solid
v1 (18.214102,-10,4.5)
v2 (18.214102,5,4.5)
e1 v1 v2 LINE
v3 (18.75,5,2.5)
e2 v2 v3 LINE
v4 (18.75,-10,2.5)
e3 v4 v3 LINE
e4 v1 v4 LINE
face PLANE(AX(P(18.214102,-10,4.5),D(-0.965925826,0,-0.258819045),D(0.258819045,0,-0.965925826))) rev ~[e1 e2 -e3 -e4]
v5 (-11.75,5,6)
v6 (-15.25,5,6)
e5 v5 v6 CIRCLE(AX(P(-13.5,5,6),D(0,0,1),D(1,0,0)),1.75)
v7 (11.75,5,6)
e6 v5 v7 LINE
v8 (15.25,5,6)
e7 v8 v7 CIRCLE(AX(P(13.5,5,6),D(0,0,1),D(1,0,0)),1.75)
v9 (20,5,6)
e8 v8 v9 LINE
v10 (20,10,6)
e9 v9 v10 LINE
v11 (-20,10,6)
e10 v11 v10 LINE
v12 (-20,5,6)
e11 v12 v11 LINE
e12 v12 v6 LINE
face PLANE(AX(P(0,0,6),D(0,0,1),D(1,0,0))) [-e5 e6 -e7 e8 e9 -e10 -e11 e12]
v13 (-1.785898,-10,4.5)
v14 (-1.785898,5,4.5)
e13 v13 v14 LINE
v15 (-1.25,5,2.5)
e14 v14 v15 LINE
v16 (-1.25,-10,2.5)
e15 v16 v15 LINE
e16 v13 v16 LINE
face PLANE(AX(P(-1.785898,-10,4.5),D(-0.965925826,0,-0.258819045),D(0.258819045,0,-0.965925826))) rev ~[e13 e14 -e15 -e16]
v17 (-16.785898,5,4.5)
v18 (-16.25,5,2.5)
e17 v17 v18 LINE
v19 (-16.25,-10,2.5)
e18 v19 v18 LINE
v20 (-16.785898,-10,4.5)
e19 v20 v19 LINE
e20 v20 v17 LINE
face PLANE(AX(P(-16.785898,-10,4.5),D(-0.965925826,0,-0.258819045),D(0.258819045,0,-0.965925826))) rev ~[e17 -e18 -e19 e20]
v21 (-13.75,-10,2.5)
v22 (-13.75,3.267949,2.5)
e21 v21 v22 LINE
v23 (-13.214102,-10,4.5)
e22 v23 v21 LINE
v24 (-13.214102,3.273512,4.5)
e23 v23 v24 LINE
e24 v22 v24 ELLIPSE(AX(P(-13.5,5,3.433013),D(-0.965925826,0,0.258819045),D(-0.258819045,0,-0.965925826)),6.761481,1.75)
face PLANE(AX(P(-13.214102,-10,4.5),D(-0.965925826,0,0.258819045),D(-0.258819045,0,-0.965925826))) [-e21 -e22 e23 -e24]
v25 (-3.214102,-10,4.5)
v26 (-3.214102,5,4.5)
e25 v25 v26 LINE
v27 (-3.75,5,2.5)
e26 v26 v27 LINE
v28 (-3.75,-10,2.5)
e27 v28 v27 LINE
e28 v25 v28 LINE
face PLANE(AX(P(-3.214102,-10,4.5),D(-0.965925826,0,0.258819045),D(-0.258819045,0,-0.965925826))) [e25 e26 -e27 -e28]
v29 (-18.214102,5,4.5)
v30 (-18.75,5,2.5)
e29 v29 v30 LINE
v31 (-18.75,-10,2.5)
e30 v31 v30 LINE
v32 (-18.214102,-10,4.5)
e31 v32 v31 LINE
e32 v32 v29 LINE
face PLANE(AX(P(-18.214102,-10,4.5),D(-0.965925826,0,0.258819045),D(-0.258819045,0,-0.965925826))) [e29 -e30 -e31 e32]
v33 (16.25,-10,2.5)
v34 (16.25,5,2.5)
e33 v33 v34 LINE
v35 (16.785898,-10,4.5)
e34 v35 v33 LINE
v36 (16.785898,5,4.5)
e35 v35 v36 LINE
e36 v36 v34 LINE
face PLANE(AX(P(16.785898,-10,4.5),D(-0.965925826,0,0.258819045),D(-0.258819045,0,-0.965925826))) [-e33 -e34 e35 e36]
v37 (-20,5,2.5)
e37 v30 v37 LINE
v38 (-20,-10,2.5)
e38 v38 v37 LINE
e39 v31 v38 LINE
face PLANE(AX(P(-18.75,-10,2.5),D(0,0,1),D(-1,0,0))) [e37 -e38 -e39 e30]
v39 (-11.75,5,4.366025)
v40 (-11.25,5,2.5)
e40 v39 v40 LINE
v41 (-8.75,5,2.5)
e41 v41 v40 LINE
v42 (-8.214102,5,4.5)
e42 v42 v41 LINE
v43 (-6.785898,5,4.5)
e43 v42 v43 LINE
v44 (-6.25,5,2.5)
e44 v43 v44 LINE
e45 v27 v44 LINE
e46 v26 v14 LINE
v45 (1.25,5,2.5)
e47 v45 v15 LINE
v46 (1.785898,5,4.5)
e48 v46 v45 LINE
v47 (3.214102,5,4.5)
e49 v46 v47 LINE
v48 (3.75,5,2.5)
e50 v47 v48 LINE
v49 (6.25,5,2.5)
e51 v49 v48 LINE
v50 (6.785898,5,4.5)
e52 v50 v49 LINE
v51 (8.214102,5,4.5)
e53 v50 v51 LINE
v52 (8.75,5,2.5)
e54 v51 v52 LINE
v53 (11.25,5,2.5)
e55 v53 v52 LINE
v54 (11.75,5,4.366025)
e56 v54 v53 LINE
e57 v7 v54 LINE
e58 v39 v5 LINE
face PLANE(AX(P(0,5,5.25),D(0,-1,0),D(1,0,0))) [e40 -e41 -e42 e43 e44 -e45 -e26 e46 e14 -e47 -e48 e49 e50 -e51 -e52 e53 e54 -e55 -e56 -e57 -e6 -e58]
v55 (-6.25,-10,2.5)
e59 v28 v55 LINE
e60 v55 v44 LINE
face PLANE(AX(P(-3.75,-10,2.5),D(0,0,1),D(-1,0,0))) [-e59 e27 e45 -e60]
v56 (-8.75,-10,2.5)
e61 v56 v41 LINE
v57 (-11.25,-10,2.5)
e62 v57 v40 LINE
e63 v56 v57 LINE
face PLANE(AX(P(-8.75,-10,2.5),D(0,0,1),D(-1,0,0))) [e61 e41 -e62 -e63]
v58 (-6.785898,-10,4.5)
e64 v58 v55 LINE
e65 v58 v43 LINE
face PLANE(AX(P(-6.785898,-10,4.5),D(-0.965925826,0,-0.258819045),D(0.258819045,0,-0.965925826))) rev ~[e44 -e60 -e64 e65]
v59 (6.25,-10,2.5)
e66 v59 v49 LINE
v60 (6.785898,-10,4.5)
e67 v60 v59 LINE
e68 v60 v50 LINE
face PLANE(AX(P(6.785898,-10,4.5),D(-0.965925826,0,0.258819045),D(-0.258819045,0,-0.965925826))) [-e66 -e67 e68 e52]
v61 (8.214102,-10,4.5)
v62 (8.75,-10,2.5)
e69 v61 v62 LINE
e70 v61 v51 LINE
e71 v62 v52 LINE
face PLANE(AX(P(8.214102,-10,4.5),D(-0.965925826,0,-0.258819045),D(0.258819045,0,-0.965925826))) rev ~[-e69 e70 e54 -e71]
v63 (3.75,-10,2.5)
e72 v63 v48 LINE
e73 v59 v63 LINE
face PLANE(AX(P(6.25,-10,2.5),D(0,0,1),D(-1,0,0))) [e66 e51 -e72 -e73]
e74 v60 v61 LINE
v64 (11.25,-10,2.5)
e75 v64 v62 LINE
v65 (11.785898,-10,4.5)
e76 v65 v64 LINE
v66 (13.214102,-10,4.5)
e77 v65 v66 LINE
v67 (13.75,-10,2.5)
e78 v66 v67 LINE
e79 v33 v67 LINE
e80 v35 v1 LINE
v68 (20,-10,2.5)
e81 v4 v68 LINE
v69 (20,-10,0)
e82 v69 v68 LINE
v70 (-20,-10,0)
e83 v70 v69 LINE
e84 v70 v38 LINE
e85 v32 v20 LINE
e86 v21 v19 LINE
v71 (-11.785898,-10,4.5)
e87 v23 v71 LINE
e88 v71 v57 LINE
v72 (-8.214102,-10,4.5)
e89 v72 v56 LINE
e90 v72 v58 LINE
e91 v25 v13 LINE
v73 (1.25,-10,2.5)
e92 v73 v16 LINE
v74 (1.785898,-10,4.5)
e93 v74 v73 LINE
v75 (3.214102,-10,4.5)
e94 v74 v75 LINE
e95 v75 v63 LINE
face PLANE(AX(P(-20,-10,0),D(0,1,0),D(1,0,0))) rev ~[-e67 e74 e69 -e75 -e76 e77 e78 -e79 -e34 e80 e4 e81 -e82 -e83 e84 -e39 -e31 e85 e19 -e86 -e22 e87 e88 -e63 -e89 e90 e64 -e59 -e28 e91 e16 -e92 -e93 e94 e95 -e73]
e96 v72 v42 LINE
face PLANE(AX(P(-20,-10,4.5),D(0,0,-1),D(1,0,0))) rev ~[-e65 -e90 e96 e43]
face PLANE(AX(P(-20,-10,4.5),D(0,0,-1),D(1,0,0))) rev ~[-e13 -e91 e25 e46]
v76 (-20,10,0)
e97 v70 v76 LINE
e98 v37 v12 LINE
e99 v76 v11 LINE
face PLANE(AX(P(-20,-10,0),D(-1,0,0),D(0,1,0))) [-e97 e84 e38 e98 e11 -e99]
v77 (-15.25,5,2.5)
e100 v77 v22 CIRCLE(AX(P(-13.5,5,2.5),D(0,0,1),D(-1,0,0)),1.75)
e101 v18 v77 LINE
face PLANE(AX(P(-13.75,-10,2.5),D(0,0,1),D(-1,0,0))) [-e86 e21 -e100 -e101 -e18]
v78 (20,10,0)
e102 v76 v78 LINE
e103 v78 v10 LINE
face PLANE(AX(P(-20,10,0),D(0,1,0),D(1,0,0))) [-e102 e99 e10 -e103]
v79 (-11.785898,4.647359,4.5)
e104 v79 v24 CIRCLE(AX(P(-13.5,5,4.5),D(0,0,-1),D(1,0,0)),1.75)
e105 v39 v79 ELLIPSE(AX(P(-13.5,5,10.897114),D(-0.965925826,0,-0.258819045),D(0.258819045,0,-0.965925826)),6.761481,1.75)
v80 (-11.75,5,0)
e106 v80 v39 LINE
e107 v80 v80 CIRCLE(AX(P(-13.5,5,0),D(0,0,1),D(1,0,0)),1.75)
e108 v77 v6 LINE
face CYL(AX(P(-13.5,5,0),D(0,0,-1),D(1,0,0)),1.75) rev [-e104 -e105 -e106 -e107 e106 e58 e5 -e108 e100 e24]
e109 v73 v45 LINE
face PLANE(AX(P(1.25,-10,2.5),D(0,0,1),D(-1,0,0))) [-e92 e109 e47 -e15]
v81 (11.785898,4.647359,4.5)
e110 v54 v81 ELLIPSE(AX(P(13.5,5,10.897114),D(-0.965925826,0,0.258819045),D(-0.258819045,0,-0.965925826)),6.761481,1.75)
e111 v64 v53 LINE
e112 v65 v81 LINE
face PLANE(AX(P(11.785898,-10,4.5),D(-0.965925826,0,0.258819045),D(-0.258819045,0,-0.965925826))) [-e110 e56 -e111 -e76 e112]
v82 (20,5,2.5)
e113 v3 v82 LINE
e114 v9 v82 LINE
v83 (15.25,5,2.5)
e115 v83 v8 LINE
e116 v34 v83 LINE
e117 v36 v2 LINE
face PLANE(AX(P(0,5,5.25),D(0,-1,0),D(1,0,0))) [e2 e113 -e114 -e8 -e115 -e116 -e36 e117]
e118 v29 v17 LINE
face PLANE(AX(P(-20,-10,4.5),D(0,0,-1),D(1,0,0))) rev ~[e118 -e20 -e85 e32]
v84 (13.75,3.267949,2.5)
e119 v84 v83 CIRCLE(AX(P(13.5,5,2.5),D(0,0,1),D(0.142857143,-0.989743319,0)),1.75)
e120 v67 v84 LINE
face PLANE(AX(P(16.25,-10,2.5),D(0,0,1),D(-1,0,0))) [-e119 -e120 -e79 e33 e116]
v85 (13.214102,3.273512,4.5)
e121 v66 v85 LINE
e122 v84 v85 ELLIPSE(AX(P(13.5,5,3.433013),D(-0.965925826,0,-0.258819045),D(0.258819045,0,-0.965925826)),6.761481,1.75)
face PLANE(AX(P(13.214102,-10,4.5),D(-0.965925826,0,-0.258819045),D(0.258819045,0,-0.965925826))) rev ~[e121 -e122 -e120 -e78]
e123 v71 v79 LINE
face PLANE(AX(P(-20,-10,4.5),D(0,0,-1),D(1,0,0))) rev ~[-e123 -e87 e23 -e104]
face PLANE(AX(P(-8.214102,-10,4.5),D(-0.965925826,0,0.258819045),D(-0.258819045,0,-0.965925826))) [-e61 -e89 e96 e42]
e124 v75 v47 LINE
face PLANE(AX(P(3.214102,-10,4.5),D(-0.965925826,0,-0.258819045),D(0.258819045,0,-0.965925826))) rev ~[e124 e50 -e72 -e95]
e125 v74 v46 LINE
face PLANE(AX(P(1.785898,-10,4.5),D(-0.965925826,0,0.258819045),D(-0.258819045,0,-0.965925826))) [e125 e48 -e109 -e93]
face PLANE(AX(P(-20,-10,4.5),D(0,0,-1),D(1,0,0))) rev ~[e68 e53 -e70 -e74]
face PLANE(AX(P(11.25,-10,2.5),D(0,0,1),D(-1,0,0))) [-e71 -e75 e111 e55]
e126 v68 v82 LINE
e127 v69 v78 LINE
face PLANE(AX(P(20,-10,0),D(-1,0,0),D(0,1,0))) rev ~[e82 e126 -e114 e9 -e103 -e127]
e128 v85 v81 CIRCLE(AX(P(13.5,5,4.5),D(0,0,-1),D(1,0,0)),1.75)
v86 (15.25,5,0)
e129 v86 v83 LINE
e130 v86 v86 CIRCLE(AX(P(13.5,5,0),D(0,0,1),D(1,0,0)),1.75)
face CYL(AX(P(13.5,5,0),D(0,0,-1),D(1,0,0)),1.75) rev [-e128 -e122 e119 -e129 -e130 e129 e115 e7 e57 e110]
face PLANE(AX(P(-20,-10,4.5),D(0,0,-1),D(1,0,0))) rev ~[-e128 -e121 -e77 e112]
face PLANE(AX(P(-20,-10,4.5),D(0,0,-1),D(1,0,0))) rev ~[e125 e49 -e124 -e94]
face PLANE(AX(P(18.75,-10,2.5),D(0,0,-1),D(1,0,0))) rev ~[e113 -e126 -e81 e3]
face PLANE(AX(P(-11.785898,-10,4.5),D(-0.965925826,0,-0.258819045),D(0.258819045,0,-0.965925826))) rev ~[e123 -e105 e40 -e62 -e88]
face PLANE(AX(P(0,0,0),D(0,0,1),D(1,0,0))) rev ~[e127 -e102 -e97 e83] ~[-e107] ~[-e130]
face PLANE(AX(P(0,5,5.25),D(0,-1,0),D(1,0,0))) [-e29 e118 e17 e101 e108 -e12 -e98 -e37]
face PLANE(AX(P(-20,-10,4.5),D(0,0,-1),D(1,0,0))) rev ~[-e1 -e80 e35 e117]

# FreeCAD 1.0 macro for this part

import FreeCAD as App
import Part
import Sketcher

V = App.Vector
Q = App.Units.Quantity

doc = App.newDocument("Part")
params = doc.addObject("Spreadsheet::Sheet", "Params")
for row, (alias, value) in enumerate([
    ("sketch1_diameter", "3.5 mm"),
    ("sketch1_width", "40 mm"),
    ("sketch1_height", "20 mm"),
    ("pad1_length", "6 mm"),
    ("sketch2_width", "40 mm"),
    ("sketch2_height", "1.5 mm"),
    ("pocket1_length", "15 mm"),
    ("sketch3_height", "2 mm"),
    ("sketch3_width", "1.25 mm"),
    ("pocket2_length", "15 mm"),
    ("linearpattern_pitch", "5 mm"),
], start=1):
    params.set(f"A{row}", alias)
    params.set(f"B{row}", "=" + value)
    params.setAlias(f"B{row}", alias)

body = doc.addObject("PartDesign::Body", "Body")

# Sketch on XY plane
sketch1 = body.newObject("Sketcher::SketchObject", "Sketch")
sketch1.AttachmentSupport = (doc.getObject("XY_Plane"), [""])
sketch1.MapMode = "FlatFace"
sketch1.addGeometry([
    Part.LineSegment(V(-20, 10, 0), V(-20, -10, 0)),  # 0
    Part.LineSegment(V(-20, -10, 0), V(20, -10, 0)),  # 1
    Part.LineSegment(V(20, -10, 0), V(20, 10, 0)),  # 2
    Part.LineSegment(V(20, 10, 0), V(-20, 10, 0)),  # 3
    Part.Circle(V(-13.5, 5, 0), V(0, 0, 1), 1.75),  # 4
    Part.Circle(V(13.5, 5, 0), V(0, 0, 1), 1.75),  # 5
], False)
sketch1.addConstraint([
    Sketcher.Constraint("Coincident", 0, 2, 1, 1),
    Sketcher.Constraint("Coincident", 1, 2, 2, 1),
    Sketcher.Constraint("Coincident", 2, 2, 3, 1),
    Sketcher.Constraint("Coincident", 3, 2, 0, 1),
    Sketcher.Constraint("Vertical", 0),
    Sketcher.Constraint("Horizontal", 1),
    Sketcher.Constraint("Vertical", 2),
    Sketcher.Constraint("Horizontal", 3),
    Sketcher.Constraint("Equal", 4, 5),
    Sketcher.Constraint("Symmetric", 0, 2, 2, 2, -1, 1),
    Sketcher.Constraint("Symmetric", 4, 3, 5, 3, -2),
    Sketcher.Constraint("Diameter", 4, 3.5),
    Sketcher.Constraint("DistanceX", 1, 1, 1, 2, 40.0),
    Sketcher.Constraint("DistanceY", 0, 2, 0, 1, 20.0),
    Sketcher.Constraint("DistanceY", -1, 1, 4, 3, 5.0),
    Sketcher.Constraint("DistanceX", 4, 3, 5, 3, 27.0),
])
sketch1.setExpression("Constraints[11]", "Params.sketch1_diameter")
sketch1.setExpression("Constraints[12]", "Params.sketch1_width")
sketch1.setExpression("Constraints[13]", "Params.sketch1_height")
pad1 = body.newObject("PartDesign::Pad", "Pad")
pad1.Profile = sketch1
pad1.setExpression("Length", "Params.pad1_length")

# Sketch on XZ plane
sketch2 = body.newObject("Sketcher::SketchObject", "Sketch001")
sketch2.AttachmentSupport = (doc.getObject("XZ_Plane"), [""])
sketch2.MapMode = "FlatFace"
sketch2.AttachmentOffset = App.Placement(V(0, 0, 10), App.Rotation())
sketch2.addGeometry([
    Part.LineSegment(V(-20, 6, 0), V(-20, 4.5, 0)),
    Part.LineSegment(V(-20, 4.5, 0), V(20, 4.5, 0)),
    Part.LineSegment(V(20, 4.5, 0), V(20, 6, 0)),
    Part.LineSegment(V(20, 6, 0), V(-20, 6, 0)),
], False)
sketch2.addConstraint([
    Sketcher.Constraint("Coincident", 0, 2, 1, 1),
    Sketcher.Constraint("Coincident", 1, 2, 2, 1),
    Sketcher.Constraint("Coincident", 2, 2, 3, 1),
    Sketcher.Constraint("Coincident", 3, 2, 0, 1),
    Sketcher.Constraint("Vertical", 0),
    Sketcher.Constraint("Horizontal", 1),
    Sketcher.Constraint("Vertical", 2),
    Sketcher.Constraint("Horizontal", 3),
    Sketcher.Constraint("DistanceX", 1, 1, 1, 2, 40.0),
    Sketcher.Constraint("DistanceY", 0, 2, 0, 1, 1.5),
    Sketcher.Constraint("DistanceX", 0, 2, -1, 1, 20.0),
    Sketcher.Constraint("DistanceY", -1, 1, 2, 2, 6.0),
])
sketch2.setExpression("Constraints[8]", "Params.sketch2_width")
sketch2.setExpression("Constraints[9]", "Params.sketch2_height")
pocket1 = body.newObject("PartDesign::Pocket", "Pocket")
pocket1.Profile = sketch2
pocket1.setExpression("Length", "Params.pocket1_length")

# Sketch on XZ plane
sketch3 = body.newObject("Sketcher::SketchObject", "Sketch002")
sketch3.AttachmentSupport = (doc.getObject("XZ_Plane"), [""])
sketch3.MapMode = "FlatFace"
sketch3.AttachmentOffset = App.Placement(V(0, 0, 10), App.Rotation())
sketch3.addGeometry([
    Part.LineSegment(V(-18.214102, 4.5, 0), V(-20, 4.5, 0)),  # 0
    Part.LineSegment(V(-20, 4.5, 0), V(-20, 2.5, 0)),  # 1
    Part.LineSegment(V(-20, 2.5, 0), V(-18.75, 2.5, 0)),  # 2
    Part.LineSegment(V(-18.75, 2.5, 0), V(-18.214102, 4.5, 0)),  # 3
    Part.LineSegment(V(-16.785898, 4.5, 0), V(-16.25, 2.5, 0)),  # 4
    Part.LineSegment(V(-16.25, 2.5, 0), V(-15, 2.5, 0)),  # 5
    Part.LineSegment(V(-15, 2.5, 0), V(-15, 4.5, 0)),  # 6
    Part.LineSegment(V(-15, 4.5, 0), V(-16.785898, 4.5, 0)),  # 7
], False)
sketch3.addConstraint([
    Sketcher.Constraint("Coincident", 0, 2, 1, 1),
    Sketcher.Constraint("Coincident", 1, 2, 2, 1),
    Sketcher.Constraint("Coincident", 2, 2, 3, 1),
    Sketcher.Constraint("Coincident", 3, 2, 0, 1),
    Sketcher.Constraint("Coincident", 4, 2, 5, 1),
    Sketcher.Constraint("Coincident", 5, 2, 6, 1),
    Sketcher.Constraint("Coincident", 6, 2, 7, 1),
    Sketcher.Constraint("Coincident", 7, 2, 4, 1),
    Sketcher.Constraint("Horizontal", 0),
    Sketcher.Constraint("Vertical", 1),
    Sketcher.Constraint("Horizontal", 2),
    Sketcher.Constraint("Horizontal", 5),
    Sketcher.Constraint("Vertical", 6),
    Sketcher.Constraint("Horizontal", 7),
    Sketcher.Constraint("Horizontal", 2, 2, 4, 2),
    Sketcher.Constraint("Horizontal", 3, 2, 6, 2),
    Sketcher.Constraint("Equal", 2, 5),
    Sketcher.Constraint("Equal", 0, 7),
    Sketcher.Constraint("DistanceY", 1, 2, 1, 1, 2.0),
    Sketcher.Constraint("Angle", 3, Q("75 deg")),
    Sketcher.Constraint("DistanceX", 0, 2, -1, 1, 20.0),
    Sketcher.Constraint("DistanceX", 5, 2, -1, 1, 15.0),
    Sketcher.Constraint("DistanceX", 2, 1, 2, 2, 1.25),
    Sketcher.Constraint("DistanceY", -1, 1, 0, 2, 4.5),
])
sketch3.setExpression("Constraints[18]", "Params.sketch3_height")
sketch3.setExpression("Constraints[22]", "Params.sketch3_width")
pocket2 = body.newObject("PartDesign::Pocket", "Pocket001")
pocket2.Profile = sketch3
pocket2.setExpression("Length", "Params.pocket2_length")
doc.recompute()

linearpattern = body.newObject("PartDesign::LinearPattern", "LinearPattern")
linearpattern.Originals = [pocket2]
linearpattern.Direction = (doc.getObject("X_Axis"), [""])
linearpattern.Mode = "offset"
linearpattern.setExpression("Offset", "Params.linearpattern_pitch")
linearpattern.Occurrences = 8
body.Tip = linearpattern

doc.recompute()
